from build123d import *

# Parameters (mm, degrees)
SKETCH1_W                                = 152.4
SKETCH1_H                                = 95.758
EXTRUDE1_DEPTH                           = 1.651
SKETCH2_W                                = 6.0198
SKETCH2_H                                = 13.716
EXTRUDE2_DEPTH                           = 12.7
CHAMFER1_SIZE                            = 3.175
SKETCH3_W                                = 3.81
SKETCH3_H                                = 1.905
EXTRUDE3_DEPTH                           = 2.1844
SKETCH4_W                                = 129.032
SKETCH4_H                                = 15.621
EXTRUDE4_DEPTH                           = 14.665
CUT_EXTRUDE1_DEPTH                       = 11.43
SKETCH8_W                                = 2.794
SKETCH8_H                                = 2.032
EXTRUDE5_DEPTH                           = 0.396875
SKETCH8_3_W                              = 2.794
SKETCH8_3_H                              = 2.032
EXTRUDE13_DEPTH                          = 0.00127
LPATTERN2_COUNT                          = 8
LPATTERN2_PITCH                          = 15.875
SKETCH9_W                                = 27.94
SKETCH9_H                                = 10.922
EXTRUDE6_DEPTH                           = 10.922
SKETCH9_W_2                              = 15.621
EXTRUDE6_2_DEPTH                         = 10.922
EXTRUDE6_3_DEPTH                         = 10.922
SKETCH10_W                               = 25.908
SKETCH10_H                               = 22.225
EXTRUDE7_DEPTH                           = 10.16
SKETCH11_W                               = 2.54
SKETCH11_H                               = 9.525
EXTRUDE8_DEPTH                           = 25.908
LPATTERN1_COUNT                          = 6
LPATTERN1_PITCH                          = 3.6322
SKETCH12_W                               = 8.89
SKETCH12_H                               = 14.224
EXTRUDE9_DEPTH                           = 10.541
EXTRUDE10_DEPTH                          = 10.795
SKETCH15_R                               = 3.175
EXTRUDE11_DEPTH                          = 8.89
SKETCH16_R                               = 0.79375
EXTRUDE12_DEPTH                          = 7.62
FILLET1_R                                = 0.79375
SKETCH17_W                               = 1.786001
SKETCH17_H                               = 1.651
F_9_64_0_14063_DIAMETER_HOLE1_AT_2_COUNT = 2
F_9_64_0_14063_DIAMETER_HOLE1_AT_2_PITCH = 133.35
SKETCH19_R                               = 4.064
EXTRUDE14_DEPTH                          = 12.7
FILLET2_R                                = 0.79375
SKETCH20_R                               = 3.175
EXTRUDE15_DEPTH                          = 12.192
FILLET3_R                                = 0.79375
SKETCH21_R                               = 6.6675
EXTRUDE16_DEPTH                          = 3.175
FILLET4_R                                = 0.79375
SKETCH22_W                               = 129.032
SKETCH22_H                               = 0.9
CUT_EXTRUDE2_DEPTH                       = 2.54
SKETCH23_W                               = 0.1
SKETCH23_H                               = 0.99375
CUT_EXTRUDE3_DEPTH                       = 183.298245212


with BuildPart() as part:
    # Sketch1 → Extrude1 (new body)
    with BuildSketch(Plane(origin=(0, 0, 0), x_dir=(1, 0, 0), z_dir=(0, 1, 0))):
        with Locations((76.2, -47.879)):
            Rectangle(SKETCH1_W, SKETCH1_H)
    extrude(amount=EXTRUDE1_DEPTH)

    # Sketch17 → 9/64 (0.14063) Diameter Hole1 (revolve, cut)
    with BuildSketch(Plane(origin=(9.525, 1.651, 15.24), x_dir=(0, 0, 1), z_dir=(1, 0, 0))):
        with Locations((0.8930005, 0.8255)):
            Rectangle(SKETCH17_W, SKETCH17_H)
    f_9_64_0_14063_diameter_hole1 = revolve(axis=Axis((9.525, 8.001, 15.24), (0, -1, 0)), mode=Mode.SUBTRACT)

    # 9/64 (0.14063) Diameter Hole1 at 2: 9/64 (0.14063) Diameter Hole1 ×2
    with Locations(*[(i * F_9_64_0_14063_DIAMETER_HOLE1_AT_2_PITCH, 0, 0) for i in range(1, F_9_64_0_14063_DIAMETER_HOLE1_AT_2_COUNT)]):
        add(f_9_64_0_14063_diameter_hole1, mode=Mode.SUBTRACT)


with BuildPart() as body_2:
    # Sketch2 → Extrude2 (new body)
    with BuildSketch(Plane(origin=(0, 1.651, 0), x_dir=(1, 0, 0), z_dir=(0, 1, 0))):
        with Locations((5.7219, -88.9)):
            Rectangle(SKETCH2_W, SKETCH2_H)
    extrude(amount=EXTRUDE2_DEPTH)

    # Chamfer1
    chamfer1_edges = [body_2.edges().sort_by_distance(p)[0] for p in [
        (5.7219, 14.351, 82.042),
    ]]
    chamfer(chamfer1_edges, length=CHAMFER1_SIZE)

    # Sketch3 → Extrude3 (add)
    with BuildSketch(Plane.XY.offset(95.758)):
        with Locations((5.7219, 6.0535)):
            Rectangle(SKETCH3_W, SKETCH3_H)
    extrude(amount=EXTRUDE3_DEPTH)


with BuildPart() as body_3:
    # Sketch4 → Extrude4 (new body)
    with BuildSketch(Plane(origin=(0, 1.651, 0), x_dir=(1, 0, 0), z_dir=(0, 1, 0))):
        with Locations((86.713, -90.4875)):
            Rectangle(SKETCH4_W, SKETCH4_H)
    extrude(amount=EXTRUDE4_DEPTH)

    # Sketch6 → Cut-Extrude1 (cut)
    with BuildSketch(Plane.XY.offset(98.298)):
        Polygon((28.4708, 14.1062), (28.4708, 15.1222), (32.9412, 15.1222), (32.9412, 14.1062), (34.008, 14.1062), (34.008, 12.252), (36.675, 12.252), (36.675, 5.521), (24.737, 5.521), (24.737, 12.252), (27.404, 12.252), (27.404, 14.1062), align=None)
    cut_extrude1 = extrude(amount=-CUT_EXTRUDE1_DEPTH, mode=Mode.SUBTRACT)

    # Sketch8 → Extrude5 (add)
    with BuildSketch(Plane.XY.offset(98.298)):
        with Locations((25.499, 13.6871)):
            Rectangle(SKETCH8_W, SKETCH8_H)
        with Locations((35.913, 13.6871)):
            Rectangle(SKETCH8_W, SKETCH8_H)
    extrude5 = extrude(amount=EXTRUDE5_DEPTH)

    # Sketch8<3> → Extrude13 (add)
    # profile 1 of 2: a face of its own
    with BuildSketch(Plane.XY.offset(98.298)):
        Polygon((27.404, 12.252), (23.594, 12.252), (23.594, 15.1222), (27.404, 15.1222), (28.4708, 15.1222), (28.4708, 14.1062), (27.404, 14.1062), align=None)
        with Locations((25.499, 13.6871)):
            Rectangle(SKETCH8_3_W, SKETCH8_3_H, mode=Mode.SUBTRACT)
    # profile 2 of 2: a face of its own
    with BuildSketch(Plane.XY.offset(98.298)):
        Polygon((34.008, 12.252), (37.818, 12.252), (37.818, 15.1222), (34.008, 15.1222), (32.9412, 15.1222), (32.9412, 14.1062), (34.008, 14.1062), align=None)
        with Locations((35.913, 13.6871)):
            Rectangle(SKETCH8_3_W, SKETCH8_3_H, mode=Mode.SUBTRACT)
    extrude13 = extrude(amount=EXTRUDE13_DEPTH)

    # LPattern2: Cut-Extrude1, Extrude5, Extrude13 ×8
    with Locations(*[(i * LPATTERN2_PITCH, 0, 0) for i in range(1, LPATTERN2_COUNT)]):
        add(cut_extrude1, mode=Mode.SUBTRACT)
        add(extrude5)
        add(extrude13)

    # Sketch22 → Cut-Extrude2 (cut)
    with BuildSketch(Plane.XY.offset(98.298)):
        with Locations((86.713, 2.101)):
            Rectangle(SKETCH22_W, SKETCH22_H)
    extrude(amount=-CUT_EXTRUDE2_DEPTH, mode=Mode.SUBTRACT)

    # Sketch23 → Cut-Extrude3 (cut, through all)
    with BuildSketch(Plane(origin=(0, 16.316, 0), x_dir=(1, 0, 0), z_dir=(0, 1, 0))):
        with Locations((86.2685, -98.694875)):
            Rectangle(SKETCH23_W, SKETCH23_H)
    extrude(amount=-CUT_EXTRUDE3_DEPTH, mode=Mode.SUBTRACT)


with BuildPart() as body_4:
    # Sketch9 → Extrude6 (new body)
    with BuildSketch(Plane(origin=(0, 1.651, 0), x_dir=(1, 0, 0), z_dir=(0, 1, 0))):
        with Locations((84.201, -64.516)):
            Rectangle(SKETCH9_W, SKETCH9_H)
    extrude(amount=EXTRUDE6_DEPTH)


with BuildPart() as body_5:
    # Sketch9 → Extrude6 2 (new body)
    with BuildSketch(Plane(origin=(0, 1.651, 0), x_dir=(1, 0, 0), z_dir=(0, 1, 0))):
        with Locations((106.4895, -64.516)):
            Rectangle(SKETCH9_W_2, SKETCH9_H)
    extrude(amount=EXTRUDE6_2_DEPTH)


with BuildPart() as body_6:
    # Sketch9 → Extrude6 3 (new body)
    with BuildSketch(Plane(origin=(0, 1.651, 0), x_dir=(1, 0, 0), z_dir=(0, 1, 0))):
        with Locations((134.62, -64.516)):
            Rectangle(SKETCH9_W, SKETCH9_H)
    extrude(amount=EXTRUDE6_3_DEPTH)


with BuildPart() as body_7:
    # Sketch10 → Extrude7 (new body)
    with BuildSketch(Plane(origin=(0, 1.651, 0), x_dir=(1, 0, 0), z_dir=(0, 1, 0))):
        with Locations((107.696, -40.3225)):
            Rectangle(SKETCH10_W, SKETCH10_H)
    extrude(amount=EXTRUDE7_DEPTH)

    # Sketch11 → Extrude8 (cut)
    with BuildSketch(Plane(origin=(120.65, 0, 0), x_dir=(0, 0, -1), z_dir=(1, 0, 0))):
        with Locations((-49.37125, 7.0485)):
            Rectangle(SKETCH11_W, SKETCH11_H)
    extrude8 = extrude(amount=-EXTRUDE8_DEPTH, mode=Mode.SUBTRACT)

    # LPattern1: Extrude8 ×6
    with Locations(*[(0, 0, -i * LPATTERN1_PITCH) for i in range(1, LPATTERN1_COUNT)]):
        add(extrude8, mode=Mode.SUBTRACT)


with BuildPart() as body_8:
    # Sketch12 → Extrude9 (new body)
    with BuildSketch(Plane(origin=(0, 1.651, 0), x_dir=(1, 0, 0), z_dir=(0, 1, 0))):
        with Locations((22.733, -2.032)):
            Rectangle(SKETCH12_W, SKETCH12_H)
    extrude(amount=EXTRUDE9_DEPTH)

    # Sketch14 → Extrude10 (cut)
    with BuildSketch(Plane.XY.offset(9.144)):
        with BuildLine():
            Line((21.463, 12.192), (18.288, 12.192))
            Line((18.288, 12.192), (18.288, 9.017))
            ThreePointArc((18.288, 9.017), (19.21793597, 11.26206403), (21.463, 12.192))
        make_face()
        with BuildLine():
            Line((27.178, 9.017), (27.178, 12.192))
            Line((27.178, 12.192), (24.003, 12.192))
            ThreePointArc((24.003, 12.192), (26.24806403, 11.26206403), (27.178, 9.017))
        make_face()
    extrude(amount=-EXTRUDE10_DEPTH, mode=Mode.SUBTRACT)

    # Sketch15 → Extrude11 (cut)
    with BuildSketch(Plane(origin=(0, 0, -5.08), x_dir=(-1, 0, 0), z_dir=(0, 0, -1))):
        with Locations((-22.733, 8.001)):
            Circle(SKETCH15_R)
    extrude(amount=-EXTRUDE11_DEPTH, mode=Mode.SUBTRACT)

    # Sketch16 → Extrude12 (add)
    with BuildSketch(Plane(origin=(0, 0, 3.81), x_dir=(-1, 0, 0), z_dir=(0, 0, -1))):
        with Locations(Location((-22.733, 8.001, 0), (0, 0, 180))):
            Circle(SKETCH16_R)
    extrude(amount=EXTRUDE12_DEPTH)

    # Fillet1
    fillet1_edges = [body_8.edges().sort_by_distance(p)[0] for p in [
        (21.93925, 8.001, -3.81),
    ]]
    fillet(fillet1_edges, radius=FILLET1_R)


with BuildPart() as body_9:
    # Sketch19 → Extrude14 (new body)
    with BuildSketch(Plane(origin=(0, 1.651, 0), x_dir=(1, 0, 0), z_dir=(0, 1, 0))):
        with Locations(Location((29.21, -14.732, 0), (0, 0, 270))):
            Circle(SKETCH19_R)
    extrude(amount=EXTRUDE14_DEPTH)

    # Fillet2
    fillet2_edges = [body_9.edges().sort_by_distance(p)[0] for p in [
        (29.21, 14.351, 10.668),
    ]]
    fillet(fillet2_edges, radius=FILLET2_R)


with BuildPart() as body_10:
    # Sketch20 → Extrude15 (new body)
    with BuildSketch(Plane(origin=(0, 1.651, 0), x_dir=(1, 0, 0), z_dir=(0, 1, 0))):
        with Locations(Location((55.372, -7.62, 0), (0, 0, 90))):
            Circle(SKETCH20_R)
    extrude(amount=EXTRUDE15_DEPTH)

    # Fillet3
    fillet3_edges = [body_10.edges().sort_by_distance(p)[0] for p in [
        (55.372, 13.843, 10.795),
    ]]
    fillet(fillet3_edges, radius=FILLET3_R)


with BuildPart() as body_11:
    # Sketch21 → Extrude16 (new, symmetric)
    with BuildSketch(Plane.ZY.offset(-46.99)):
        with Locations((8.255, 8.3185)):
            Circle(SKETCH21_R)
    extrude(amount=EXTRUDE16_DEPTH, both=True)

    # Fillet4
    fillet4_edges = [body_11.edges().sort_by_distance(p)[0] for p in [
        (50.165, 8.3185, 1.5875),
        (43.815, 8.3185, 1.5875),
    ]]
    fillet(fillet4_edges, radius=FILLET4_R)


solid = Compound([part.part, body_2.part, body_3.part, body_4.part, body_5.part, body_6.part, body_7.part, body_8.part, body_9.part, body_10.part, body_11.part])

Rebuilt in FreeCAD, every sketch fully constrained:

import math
import FreeCAD as App
import Part
import Sketcher
Q = App.Units.Quantity


def edges_at(feature, points):
    """Names of the edges that pass closest to the given points."""
    edges = feature.Shape.Edges
    near = lambda p: min(range(len(edges)), key=lambda i: edges[i].distToShape(Part.Vertex(*p))[0])
    return sorted({f"Edge{near(p) + 1}" for p in points})


def add_polygon(sketch, points):
    """Adds a closed chain of lines whose ends are joined by coincident constraints."""
    first, n = sketch.GeometryCount, len(points)
    for a, b in zip(points, points[1:] + points[:1]):
        sketch.addGeometry(Part.LineSegment(App.Vector(*a, 0), App.Vector(*b, 0)), False)
    for i in range(n):
        sketch.addConstraint(Sketcher.Constraint("Coincident", first + i, 2, first + (i + 1) % n, 1))

doc = App.newDocument("Part")
body = doc.addObject("PartDesign::Body", "Body")

sketch1 = body.newObject("Sketcher::SketchObject", "Sketch")
sketch1.AttachmentSupport = (doc.getObject("XZ_Plane"), [""])
sketch1.MapMode = "FlatFace"
add_polygon(sketch1, [(0, 0), (0, 96), (152, 96), (152, 0)])
sketch1.addConstraint([
    Sketcher.Constraint("Vertical", 0),
    Sketcher.Constraint("Horizontal", 1),
    Sketcher.Constraint("Vertical", 2),
    Sketcher.Constraint("Horizontal", 3),
    Sketcher.Constraint("Coincident", 3, 2, -1, 1),
    Sketcher.Constraint("DistanceX", 1, 1, 1, 2, Q("6 in")),
    Sketcher.Constraint("DistanceY", 0, 1, 0, 2, Q("3.77 in")),
])
pad1 = body.newObject("PartDesign::Pad", "Pad")
pad1.Profile = sketch1
pad1.Length = Q("0.065 in")
pad1.Reversed = True

sketch2 = body.newObject("Sketcher::SketchObject", "Sketch001")
sketch2.AttachmentSupport = (doc.getObject("YZ_Plane"), [""])
sketch2.MapMode = "FlatFace"
sketch2.AttachmentOffset = App.Placement(App.Vector(0, 0, 0.375 * 25.4), App.Rotation())
add_polygon(sketch2, [(0, 15.2), (1.7, 15.2), (1.7, 17), (0, 17)])
sketch2.addGeometry(Part.LineSegment(App.Vector(1.7, 15.2, 0), App.Vector(0, 15.2, 0)), True)
sketch2.addConstraint([
    Sketcher.Constraint("Horizontal", 0),
    Sketcher.Constraint("Vertical", 1),
    Sketcher.Constraint("Horizontal", 2),
    Sketcher.Constraint("Vertical", 3),
    Sketcher.Constraint("Horizontal", 4),
    Sketcher.Constraint("Coincident", 4, 1, 0, 2),
    Sketcher.Constraint("PointOnObject", 2, 2, -2),
    Sketcher.Constraint("PointOnObject", 4, 2, -2),
    Sketcher.Constraint("DistanceY", -1, 1, 0, 2, Q("0.6 in")),
    Sketcher.Constraint("DistanceX", 0, 1, 0, 2, Q("0.065 in")),
    Sketcher.Constraint("DistanceY", 1, 1, 1, 2, 1.786001),
])
groove = body.newObject("PartDesign::Groove", "Groove")
groove.Profile = sketch2
groove.ReferenceAxis = (sketch2, ["Axis0"])
groove.Angle = 360
doc.recompute()

linearpattern = body.newObject("PartDesign::LinearPattern", "LinearPattern")
linearpattern.Originals = [groove]
linearpattern.Direction = (doc.getObject("X_Axis"), [""])
linearpattern.Mode = "offset"
linearpattern.Offset = Q("5.25 in")
linearpattern.Occurrences = 2
body.Tip = linearpattern
body2 = doc.addObject("PartDesign::Body", "Body001")

sketch3 = body2.newObject("Sketcher::SketchObject", "Sketch002")
sketch3.AttachmentSupport = (doc.getObject("XZ_Plane001"), [""])
sketch3.MapMode = "FlatFace"
sketch3.AttachmentOffset = App.Placement(App.Vector(0, 0, -0.065 * 25.4), App.Rotation())
add_polygon(sketch3, [(3, 82), (3, 96), (9, 96), (9, 82)])
sketch3.addConstraint([
    Sketcher.Constraint("Vertical", 0),
    Sketcher.Constraint("Horizontal", 1),
    Sketcher.Constraint("Vertical", 2),
    Sketcher.Constraint("Horizontal", 3),
    Sketcher.Constraint("DistanceY", 0, 1, 0, 2, Q("0.54 in")),
    Sketcher.Constraint("DistanceX", 1, 1, 1, 2, Q("0.237 in")),
    Sketcher.Constraint("DistanceY", -1, 1, 0, 2, Q("3.77 in")),
    Sketcher.Constraint("DistanceX", -1, 1, 0, 2, 2.712),
])
pad2 = body2.newObject("PartDesign::Pad", "Pad001")
pad2.Profile = sketch3
pad2.Length = Q("0.5 in")
pad2.Reversed = True
doc.recompute()

chamfer = body2.newObject("PartDesign::Chamfer", "Chamfer")
chamfer.Base = (pad2, edges_at(pad2, [(5.722, 14.351, 82.042)]))
chamfer.Size = Q("0.125 in")

sketch4 = body2.newObject("Sketcher::SketchObject", "Sketch003")
sketch4.AttachmentSupport = (doc.getObject("XY_Plane001"), [""])
sketch4.MapMode = "FlatFace"
sketch4.AttachmentOffset = App.Placement(App.Vector(0, 0, 3.77 * 25.4), App.Rotation())
add_polygon(sketch4, [(3.8, 7), (3.8, 5.1), (7.6, 5.1), (7.6, 7)])
sketch4.addConstraint([
    Sketcher.Constraint("Vertical", 0),
    Sketcher.Constraint("Horizontal", 1),
    Sketcher.Constraint("Vertical", 2),
    Sketcher.Constraint("Horizontal", 3),
    Sketcher.Constraint("DistanceX", 1, 1, 1, 2, Q("0.15 in")),
    Sketcher.Constraint("DistanceY", 0, 2, 0, 1, Q("0.075 in")),
    Sketcher.Constraint("DistanceX", -1, 1, 0, 2, 3.8169),
    Sketcher.Constraint("DistanceY", -1, 1, 0, 2, 5.101),
])
pad3 = body2.newObject("PartDesign::Pad", "Pad002")
pad3.Profile = sketch4
pad3.Length = Q("0.086 in")
body3 = doc.addObject("PartDesign::Body", "Body002")

sketch5 = body3.newObject("Sketcher::SketchObject", "Sketch004")
sketch5.AttachmentSupport = (doc.getObject("XZ_Plane002"), [""])
sketch5.MapMode = "FlatFace"
sketch5.AttachmentOffset = App.Placement(App.Vector(0, 0, -0.065 * 25.4), App.Rotation())
add_polygon(sketch5, [(22, 83), (22, 98), (151, 98), (151, 83)])
sketch5.addConstraint([
    Sketcher.Constraint("Vertical", 0),
    Sketcher.Constraint("Horizontal", 1),
    Sketcher.Constraint("Vertical", 2),
    Sketcher.Constraint("Horizontal", 3),
    Sketcher.Constraint("DistanceX", 1, 1, 1, 2, Q("5.08 in")),
    Sketcher.Constraint("DistanceY", 0, 1, 0, 2, Q("0.615 in")),
    Sketcher.Constraint("DistanceY", -1, 1, 0, 2, Q("3.87 in")),
    Sketcher.Constraint("DistanceX", -1, 1, 0, 2, 22.197),
])
pad4 = body3.newObject("PartDesign::Pad", "Pad003")
pad4.Profile = sketch5
pad4.Length = 14.665
pad4.Reversed = True

sketch6 = body3.newObject("Sketcher::SketchObject", "Sketch005")
sketch6.AttachmentSupport = (doc.getObject("XY_Plane002"), [""])
sketch6.MapMode = "FlatFace"
sketch6.AttachmentOffset = App.Placement(App.Vector(0, 0, 3.87 * 25.4), App.Rotation())
add_polygon(sketch6, [(28.5, 15.1), (28.5, 14.1), (27.4, 14.1), (27.4, 12.3), (24.7, 12.3), (24.7, 5.5), (36.7, 5.5), (36.7, 12.3), (34, 12.3), (34, 14.1), (32.9, 14.1), (32.9, 15.1)])
sketch6.addConstraint([
    Sketcher.Constraint("Vertical", 0),
    Sketcher.Constraint("Horizontal", 1),
    Sketcher.Constraint("Vertical", 2),
    Sketcher.Constraint("Horizontal", 3),
    Sketcher.Constraint("Vertical", 4),
    Sketcher.Constraint("Horizontal", 5),
    Sketcher.Constraint("Vertical", 6),
    Sketcher.Constraint("Horizontal", 7),
    Sketcher.Constraint("Vertical", 8),
    Sketcher.Constraint("Horizontal", 9),
    Sketcher.Constraint("Vertical", 10),
    Sketcher.Constraint("Horizontal", 11),
    Sketcher.Constraint("Horizontal", 3, 2, 6, 2),
    Sketcher.Constraint("Horizontal", 1, 2, 8, 2),
    Sketcher.Constraint("Equal", 3, 7),
    Sketcher.Constraint("Equal", 1, 9),
    Sketcher.Constraint("DistanceX", 5, 1, 5, 2, Q("0.47 in")),
    Sketcher.Constraint("DistanceY", 0, 2, 0, 1, Q("0.04 in")),
    Sketcher.Constraint("DistanceX", 1, 2, 1, 1, Q("0.042 in")),
    Sketcher.Constraint("DistanceX", 3, 2, 3, 1, Q("0.105 in")),
    Sketcher.Constraint("DistanceY", 2, 2, 2, 1, Q("0.073 in")),
    Sketcher.Constraint("DistanceY", 4, 2, 4, 1, Q("0.265 in")),
    Sketcher.Constraint("DistanceX", -1, 1, 0, 2, 28.4708),
    Sketcher.Constraint("DistanceY", -1, 1, 0, 2, 14.1062),
])
pocket1 = body3.newObject("PartDesign::Pocket", "Pocket")
pocket1.Profile = sketch6
pocket1.Length = Q("0.45 in")

sketch7 = body3.newObject("Sketcher::SketchObject", "Sketch006")
sketch7.AttachmentSupport = (doc.getObject("XY_Plane002"), [""])
sketch7.MapMode = "FlatFace"
sketch7.AttachmentOffset = App.Placement(App.Vector(0, 0, 3.87 * 25.4), App.Rotation())
add_polygon(sketch7, [(24.1, 14.7), (24.1, 12.7), (26.9, 12.7), (26.9, 14.7)])
add_polygon(sketch7, [(34.5, 14.7), (34.5, 12.7), (37.3, 12.7), (37.3, 14.7)])
sketch7.addConstraint([
    Sketcher.Constraint("Vertical", 0),
    Sketcher.Constraint("Horizontal", 1),
    Sketcher.Constraint("Vertical", 2),
    Sketcher.Constraint("Horizontal", 3),
    Sketcher.Constraint("Vertical", 4),
    Sketcher.Constraint("Horizontal", 5),
    Sketcher.Constraint("Vertical", 6),
    Sketcher.Constraint("Horizontal", 7),
    Sketcher.Constraint("Horizontal", 1, 2, 4, 2),
    Sketcher.Constraint("Horizontal", 3, 2, 6, 2),
    Sketcher.Constraint("Equal", 3, 5),
    Sketcher.Constraint("DistanceX", 1, 1, 1, 2, Q("0.11 in")),
    Sketcher.Constraint("DistanceY", 0, 2, 0, 1, Q("0.08 in")),
    Sketcher.Constraint("DistanceX", 1, 2, 4, 2, Q("0.3 in")),
    Sketcher.Constraint("DistanceX", -1, 1, 0, 2, 24.102),
    Sketcher.Constraint("DistanceY", -1, 1, 0, 2, 12.6711),
])
pad5 = body3.newObject("PartDesign::Pad", "Pad004")
pad5.Profile = sketch7
pad5.Length = Q("0.015625 in")

sketch8 = body3.newObject("Sketcher::SketchObject", "Sketch007")
sketch8.AttachmentSupport = (doc.getObject("XY_Plane002"), [""])
sketch8.MapMode = "FlatFace"
sketch8.AttachmentOffset = App.Placement(App.Vector(0, 0, 3.87 * 25.4), App.Rotation())
add_polygon(sketch8, [(23.6, 12.3), (27.4, 12.3), (27.4, 14.1), (28.5, 14.1), (28.5, 15.1), (23.6, 15.1)])
add_polygon(sketch8, [(24.1, 12.7), (24.1, 14.7), (26.9, 14.7), (26.9, 12.7)])
add_polygon(sketch8, [(34, 12.3), (37.8, 12.3), (37.8, 15.1), (32.9, 15.1), (32.9, 14.1), (34, 14.1)])
add_polygon(sketch8, [(37.3, 12.7), (34.5, 12.7), (34.5, 14.7), (37.3, 14.7)])
sketch8.addConstraint([
    Sketcher.Constraint("Horizontal", 0),
    Sketcher.Constraint("Vertical", 1),
    Sketcher.Constraint("Horizontal", 2),
    Sketcher.Constraint("Vertical", 3),
    Sketcher.Constraint("Horizontal", 4),
    Sketcher.Constraint("Vertical", 5),
    Sketcher.Constraint("Vertical", 6),
    Sketcher.Constraint("Horizontal", 7),
    Sketcher.Constraint("Vertical", 8),
    Sketcher.Constraint("Horizontal", 9),
    Sketcher.Constraint("Horizontal", 10),
    Sketcher.Constraint("Vertical", 11),
    Sketcher.Constraint("Horizontal", 12),
    Sketcher.Constraint("Vertical", 13),
    Sketcher.Constraint("Horizontal", 14),
    Sketcher.Constraint("Vertical", 15),
    Sketcher.Constraint("Horizontal", 16),
    Sketcher.Constraint("Vertical", 17),
    Sketcher.Constraint("Horizontal", 18),
    Sketcher.Constraint("Vertical", 19),
    Sketcher.Constraint("Horizontal", 5, 2, 10, 2),
    Sketcher.Constraint("Horizontal", 4, 2, 11, 2),
    Sketcher.Constraint("Horizontal", 2, 2, 13, 2),
    Sketcher.Constraint("Horizontal", 9, 2, 16, 2),
    Sketcher.Constraint("Horizontal", 7, 2, 17, 2),
    Sketcher.Constraint("Equal", 0, 10),
    Sketcher.Constraint("Equal", 4, 12),
    Sketcher.Constraint("Equal", 9, 16),
    Sketcher.Constraint("DistanceX", 0, 1, 0, 2, Q("0.15 in")),
    Sketcher.Constraint("DistanceX", 7, 1, 7, 2, Q("0.11 in")),
    Sketcher.Constraint("DistanceY", 3, 1, 3, 2, Q("0.04 in")),
    Sketcher.Constraint("DistanceY", 6, 1, 6, 2, Q("0.08 in")),
    Sketcher.Constraint("DistanceX", 2, 1, 2, 2, Q("0.042 in")),
    Sketcher.Constraint("DistanceY", 1, 1, 1, 2, Q("0.073 in")),
    Sketcher.Constraint("DistanceX", 4, 2, 6, 2, Q("0.02 in")),
    Sketcher.Constraint("DistanceX", 0, 2, 10, 2, Q("0.41 in")),
    Sketcher.Constraint("DistanceX", 15, 2, 16, 2, Q("0.02 in")),
    Sketcher.Constraint("DistanceY", 6, 2, 4, 2, Q("0.0165 in")),
    Sketcher.Constraint("DistanceX", -1, 1, 0, 2, 27.404),
    Sketcher.Constraint("DistanceY", -1, 1, 0, 2, 12.252),
])
pad6 = body3.newObject("PartDesign::Pad", "Pad005")
pad6.Profile = sketch8
pad6.Length = 0.00127
doc.recompute()

linearpattern2 = body3.newObject("PartDesign::LinearPattern", "LinearPattern001")
linearpattern2.Originals = [pocket1, pad5, pad6]
linearpattern2.Direction = (doc.getObject("X_Axis002"), [""])
linearpattern2.Mode = "offset"
linearpattern2.Offset = Q("0.625 in")
linearpattern2.Occurrences = 8
body3.Tip = linearpattern2

sketch9 = body3.newObject("Sketcher::SketchObject", "Sketch008")
sketch9.AttachmentSupport = (doc.getObject("XY_Plane002"), [""])
sketch9.MapMode = "FlatFace"
sketch9.AttachmentOffset = App.Placement(App.Vector(0, 0, 3.87 * 25.4), App.Rotation())
add_polygon(sketch9, [(22.2, 2.6), (22.2, 1.7), (151.2, 1.7), (151.2, 2.6)])
sketch9.addConstraint([
    Sketcher.Constraint("Vertical", 0),
    Sketcher.Constraint("Horizontal", 1),
    Sketcher.Constraint("Vertical", 2),
    Sketcher.Constraint("Horizontal", 3),
    Sketcher.Constraint("DistanceX", 1, 1, 1, 2, Q("5.08 in")),
    Sketcher.Constraint("DistanceY", -1, 1, 0, 2, Q("0.065 in")),
    Sketcher.Constraint("DistanceY", 0, 2, 0, 1, 0.9),
    Sketcher.Constraint("DistanceX", -1, 1, 0, 2, 22.197),
])
pocket2 = body3.newObject("PartDesign::Pocket", "Pocket001")
pocket2.Profile = sketch9
pocket2.Length = Q("0.1 in")

sketch10 = body3.newObject("Sketcher::SketchObject", "Sketch009")
sketch10.AttachmentSupport = (doc.getObject("XZ_Plane002"), [""])
sketch10.MapMode = "FlatFace"
sketch10.AttachmentOffset = App.Placement(App.Vector(0, 0, -16.316), App.Rotation())
add_polygon(sketch10, [(86.22, 98.2), (86.22, 99.19), (86.32, 99.19), (86.32, 98.2)])
sketch10.addConstraint([
    Sketcher.Constraint("Vertical", 0),
    Sketcher.Constraint("Horizontal", 1),
    Sketcher.Constraint("Vertical", 2),
    Sketcher.Constraint("Horizontal", 3),
    Sketcher.Constraint("DistanceX", 1, 1, 1, 2, 0.1),
    Sketcher.Constraint("DistanceY", 0, 1, 0, 2, 0.99375),
    Sketcher.Constraint("DistanceX", -1, 1, 0, 2, 86.2185),
    Sketcher.Constraint("DistanceY", -1, 1, 2, 2, 98.198),
])
pocket3 = body3.newObject("PartDesign::Pocket", "Pocket002")
pocket3.Profile = sketch10
pocket3.Type = "ThroughAll"
pocket3.Reversed = True
body4 = doc.addObject("PartDesign::Body", "Body003")

sketch11 = body4.newObject("Sketcher::SketchObject", "Sketch010")
sketch11.AttachmentSupport = (doc.getObject("XZ_Plane003"), [""])
sketch11.MapMode = "FlatFace"
sketch11.AttachmentOffset = App.Placement(App.Vector(0, 0, -0.065 * 25.4), App.Rotation())
add_polygon(sketch11, [(70, 59), (70, 70), (98, 70), (98, 59)])
sketch11.addConstraint([
    Sketcher.Constraint("Vertical", 0),
    Sketcher.Constraint("Horizontal", 1),
    Sketcher.Constraint("Vertical", 2),
    Sketcher.Constraint("Horizontal", 3),
    Sketcher.Constraint("DistanceX", 1, 1, 1, 2, Q("1.1 in")),
    Sketcher.Constraint("DistanceY", 0, 1, 0, 2, Q("0.43 in")),
    Sketcher.Constraint("DistanceX", -1, 1, 0, 2, Q("2.765 in")),
    Sketcher.Constraint("DistanceY", -1, 1, 0, 2, Q("2.755 in")),
])
pad7 = body4.newObject("PartDesign::Pad", "Pad006")
pad7.Profile = sketch11
pad7.Length = Q("0.43 in")
pad7.Reversed = True
body5 = doc.addObject("PartDesign::Body", "Body004")

sketch12 = body5.newObject("Sketcher::SketchObject", "Sketch011")
sketch12.AttachmentSupport = (doc.getObject("XZ_Plane004"), [""])
sketch12.MapMode = "FlatFace"
sketch12.AttachmentOffset = App.Placement(App.Vector(0, 0, -0.065 * 25.4), App.Rotation())
add_polygon(sketch12, [(99, 59), (99, 70), (114, 70), (114, 59)])
sketch12.addConstraint([
    Sketcher.Constraint("Vertical", 0),
    Sketcher.Constraint("Horizontal", 1),
    Sketcher.Constraint("Vertical", 2),
    Sketcher.Constraint("Horizontal", 3),
    Sketcher.Constraint("DistanceY", 0, 1, 0, 2, Q("0.43 in")),
    Sketcher.Constraint("DistanceX", -1, 1, 1, 2, Q("4.5 in")),
    Sketcher.Constraint("DistanceX", 1, 1, 1, 2, Q("0.615 in")),
    Sketcher.Constraint("DistanceY", -1, 1, 0, 2, Q("2.755 in")),
])
pad8 = body5.newObject("PartDesign::Pad", "Pad007")
pad8.Profile = sketch12
pad8.Length = Q("0.43 in")
pad8.Reversed = True
body6 = doc.addObject("PartDesign::Body", "Body005")

sketch13 = body6.newObject("Sketcher::SketchObject", "Sketch012")
sketch13.AttachmentSupport = (doc.getObject("XZ_Plane005"), [""])
sketch13.MapMode = "FlatFace"
sketch13.AttachmentOffset = App.Placement(App.Vector(0, 0, -0.065 * 25.4), App.Rotation())
add_polygon(sketch13, [(121, 59), (121, 70), (149, 70), (149, 59)])
sketch13.addConstraint([
    Sketcher.Constraint("Vertical", 0),
    Sketcher.Constraint("Horizontal", 1),
    Sketcher.Constraint("Vertical", 2),
    Sketcher.Constraint("Horizontal", 3),
    Sketcher.Constraint("DistanceX", 1, 1, 1, 2, Q("1.1 in")),
    Sketcher.Constraint("DistanceY", 0, 1, 0, 2, Q("0.43 in")),
    Sketcher.Constraint("DistanceX", -1, 1, 0, 2, Q("4.75 in")),
    Sketcher.Constraint("DistanceY", -1, 1, 0, 2, Q("2.755 in")),
])
pad9 = body6.newObject("PartDesign::Pad", "Pad008")
pad9.Profile = sketch13
pad9.Length = Q("0.43 in")
pad9.Reversed = True
body7 = doc.addObject("PartDesign::Body", "Body006")

sketch14 = body7.newObject("Sketcher::SketchObject", "Sketch013")
sketch14.AttachmentSupport = (doc.getObject("XZ_Plane006"), [""])
sketch14.MapMode = "FlatFace"
sketch14.AttachmentOffset = App.Placement(App.Vector(0, 0, -0.065 * 25.4), App.Rotation())
add_polygon(sketch14, [(95, 29), (95, 51), (121, 51), (121, 29)])
sketch14.addConstraint([
    Sketcher.Constraint("Vertical", 0),
    Sketcher.Constraint("Horizontal", 1),
    Sketcher.Constraint("Vertical", 2),
    Sketcher.Constraint("Horizontal", 3),
    Sketcher.Constraint("DistanceX", 1, 1, 1, 2, Q("1.02 in")),
    Sketcher.Constraint("DistanceY", 0, 1, 0, 2, Q("0.875 in")),
    Sketcher.Constraint("DistanceX", -1, 1, 0, 2, Q("3.73 in")),
    Sketcher.Constraint("DistanceY", -1, 1, 2, 2, Q("1.15 in")),
])
pad10 = body7.newObject("PartDesign::Pad", "Pad009")
pad10.Profile = sketch14
pad10.Length = Q("0.4 in")
pad10.Reversed = True

sketch15 = body7.newObject("Sketcher::SketchObject", "Sketch014")
sketch15.AttachmentSupport = (doc.getObject("YZ_Plane006"), [""])
sketch15.MapMode = "FlatFace"
sketch15.AttachmentOffset = App.Placement(App.Vector(0, 0, 4.75 * 25.4), App.Rotation())
add_polygon(sketch15, [(11.8, 50.6), (2.3, 50.6), (2.3, 48.1), (11.8, 48.1)])
sketch15.addConstraint([
    Sketcher.Constraint("Horizontal", 0),
    Sketcher.Constraint("Vertical", 1),
    Sketcher.Constraint("Horizontal", 2),
    Sketcher.Constraint("Vertical", 3),
    Sketcher.Constraint("DistanceY", 1, 2, 1, 1, Q("0.1 in")),
    Sketcher.Constraint("DistanceX", 0, 2, 0, 1, Q("0.375 in")),
    Sketcher.Constraint("DistanceX", -1, 1, 0, 2, Q("0.09 in")),
    Sketcher.Constraint("DistanceY", -1, 1, 0, 2, 50.64125),
])
pocket4 = body7.newObject("PartDesign::Pocket", "Pocket003")
pocket4.Profile = sketch15
pocket4.Length = Q("1.02 in")
doc.recompute()

linearpattern3 = body7.newObject("PartDesign::LinearPattern", "LinearPattern002")
linearpattern3.Originals = [pocket4]
linearpattern3.Direction = (doc.getObject("Z_Axis006"), [""])
linearpattern3.Mode = "offset"
linearpattern3.Offset = Q("0.143 in")
linearpattern3.Occurrences = 6
linearpattern3.Reversed = True
body7.Tip = linearpattern3
body8 = doc.addObject("PartDesign::Body", "Body007")

sketch16 = body8.newObject("Sketcher::SketchObject", "Sketch015")
sketch16.AttachmentSupport = (doc.getObject("XZ_Plane007"), [""])
sketch16.MapMode = "FlatFace"
sketch16.AttachmentOffset = App.Placement(App.Vector(0, 0, -0.065 * 25.4), App.Rotation())
add_polygon(sketch16, [(18, -5), (18, 9), (27, 9), (27, -5)])
sketch16.addConstraint([
    Sketcher.Constraint("Vertical", 0),
    Sketcher.Constraint("Horizontal", 1),
    Sketcher.Constraint("Vertical", 2),
    Sketcher.Constraint("Horizontal", 3),
    Sketcher.Constraint("DistanceX", 1, 1, 1, 2, Q("0.35 in")),
    Sketcher.Constraint("DistanceY", 0, 1, 0, 2, Q("0.56 in")),
    Sketcher.Constraint("DistanceY", 2, 2, -1, 1, Q("0.2 in")),
    Sketcher.Constraint("DistanceX", -1, 1, 0, 2, Q("0.72 in")),
])
pad11 = body8.newObject("PartDesign::Pad", "Pad010")
pad11.Profile = sketch16
pad11.Length = Q("0.415 in")
pad11.Reversed = True

sketch17 = body8.newObject("Sketcher::SketchObject", "Sketch016")
sketch17.AttachmentSupport = (doc.getObject("XY_Plane007"), [""])
sketch17.MapMode = "FlatFace"
sketch17.AttachmentOffset = App.Placement(App.Vector(0, 0, 0.36 * 25.4), App.Rotation())
sketch17.addGeometry([
    Part.LineSegment(App.Vector(21.5, 12.2, 0), App.Vector(18.3, 12.2, 0)),
    Part.LineSegment(App.Vector(18.3, 12.2, 0), App.Vector(18.3, 9, 0)),
    Part.ArcOfCircle(Part.Circle(App.Vector(21.5, 9, 0), App.Vector(0, 0, 1), 3.2), math.radians(90), math.radians(180)),
    Part.LineSegment(App.Vector(27.2, 9, 0), App.Vector(27.2, 12.2, 0)),
    Part.LineSegment(App.Vector(27.2, 12.2, 0), App.Vector(24, 12.2, 0)),
    Part.ArcOfCircle(Part.Circle(App.Vector(24, 9, 0), App.Vector(0, 0, 1), 3.2), math.radians(0), math.radians(90)),
], False)
sketch17.addConstraint([
    Sketcher.Constraint("Coincident", 0, 2, 1, 1),
    Sketcher.Constraint("Tangent", 1, 2, 2, 2),
    Sketcher.Constraint("Tangent", 2, 1, 0, 1),
    Sketcher.Constraint("Coincident", 3, 2, 4, 1),
    Sketcher.Constraint("Tangent", 4, 2, 5, 2),
    Sketcher.Constraint("Tangent", 5, 1, 3, 1),
    Sketcher.Constraint("Horizontal", 0),
    Sketcher.Constraint("Vertical", 1),
    Sketcher.Constraint("Vertical", 3),
    Sketcher.Constraint("Horizontal", 4),
    Sketcher.Constraint("Equal", 2, 5),
    Sketcher.Constraint("Horizontal", 2, 3, 5, 3),
    Sketcher.Constraint("Radius", 2, Q("0.125 in")),
    Sketcher.Constraint("DistanceX", 2, 3, 5, 3, Q("0.1 in")),
    Sketcher.Constraint("DistanceX", -1, 1, 0, 2, Q("0.72 in")),
    Sketcher.Constraint("DistanceY", -1, 1, 0, 2, Q("0.48 in")),
])
pocket5 = body8.newObject("PartDesign::Pocket", "Pocket004")
pocket5.Profile = sketch17
pocket5.Length = Q("0.425 in")

sketch18 = body8.newObject("Sketcher::SketchObject", "Sketch017")
sketch18.AttachmentSupport = (doc.getObject("XY_Plane007"), [""])
sketch18.MapMode = "FlatFace"
sketch18.AttachmentOffset = App.Placement(App.Vector(0, 0, -0.2 * 25.4), App.Rotation())
sketch18.addGeometry(Part.Circle(App.Vector(22.7, 8, 0), App.Vector(0, 0, 1), 3.2), False)
sketch18.addConstraint([
    Sketcher.Constraint("Diameter", 0, Q("0.25 in")),
    Sketcher.Constraint("DistanceX", -1, 1, 0, 3, Q("0.895 in")),
    Sketcher.Constraint("DistanceY", -1, 1, 0, 3, Q("0.315 in")),
])
pocket6 = body8.newObject("PartDesign::Pocket", "Pocket005")
pocket6.Profile = sketch18
pocket6.Length = Q("0.35 in")
pocket6.Reversed = True

sketch19 = body8.newObject("Sketcher::SketchObject", "Sketch018")
sketch19.AttachmentSupport = (doc.getObject("XY_Plane007"), [""])
sketch19.MapMode = "FlatFace"
sketch19.AttachmentOffset = App.Placement(App.Vector(0, 0, 0.15 * 25.4), App.Rotation())
sketch19.addGeometry(Part.Circle(App.Vector(22.7, 8, 0), App.Vector(0, 0, 1), 0.8), False)
sketch19.addConstraint([
    Sketcher.Constraint("Diameter", 0, Q("0.0625 in")),
    Sketcher.Constraint("DistanceX", -1, 1, 0, 3, Q("0.895 in")),
    Sketcher.Constraint("DistanceY", -1, 1, 0, 3, Q("0.315 in")),
])
pad12 = body8.newObject("PartDesign::Pad", "Pad011")
pad12.Profile = sketch19
pad12.Length = Q("0.3 in")
pad12.Reversed = True
doc.recompute()

fillet = body8.newObject("PartDesign::Fillet", "Fillet")
fillet.Base = (pad12, edges_at(pad12, [(21.939, 8.001, -3.81)]))
fillet.Radius = Q("0.03125 in")
body9 = doc.addObject("PartDesign::Body", "Body008")

sketch20 = body9.newObject("Sketcher::SketchObject", "Sketch019")
sketch20.AttachmentSupport = (doc.getObject("XZ_Plane008"), [""])
sketch20.MapMode = "FlatFace"
sketch20.AttachmentOffset = App.Placement(App.Vector(0, 0, -0.065 * 25.4), App.Rotation())
sketch20.addGeometry(Part.Circle(App.Vector(29.2, 14.7, 0), App.Vector(0, 0, 1), 4.1), False)
sketch20.addConstraint([
    Sketcher.Constraint("Diameter", 0, Q("0.32 in")),
    Sketcher.Constraint("DistanceX", -1, 1, 0, 3, Q("1.15 in")),
    Sketcher.Constraint("DistanceY", -1, 1, 0, 3, Q("0.58 in")),
])
pad13 = body9.newObject("PartDesign::Pad", "Pad012")
pad13.Profile = sketch20
pad13.Length = Q("0.5 in")
pad13.Reversed = True
doc.recompute()

fillet2 = body9.newObject("PartDesign::Fillet", "Fillet001")
fillet2.Base = (pad13, edges_at(pad13, [(29.21, 14.351, 10.668)]))
fillet2.Radius = Q("0.03125 in")
body10 = doc.addObject("PartDesign::Body", "Body009")

sketch21 = body10.newObject("Sketcher::SketchObject", "Sketch020")
sketch21.AttachmentSupport = (doc.getObject("XZ_Plane009"), [""])
sketch21.MapMode = "FlatFace"
sketch21.AttachmentOffset = App.Placement(App.Vector(0, 0, -0.065 * 25.4), App.Rotation())
sketch21.addGeometry(Part.Circle(App.Vector(55.4, 7.6, 0), App.Vector(0, 0, 1), 3.2), False)
sketch21.addConstraint([
    Sketcher.Constraint("Diameter", 0, Q("0.25 in")),
    Sketcher.Constraint("DistanceY", -1, 1, 0, 3, Q("0.3 in")),
    Sketcher.Constraint("DistanceX", -1, 1, 0, 3, Q("2.18 in")),
])
pad14 = body10.newObject("PartDesign::Pad", "Pad013")
pad14.Profile = sketch21
pad14.Length = Q("0.48 in")
pad14.Reversed = True
doc.recompute()

fillet3 = body10.newObject("PartDesign::Fillet", "Fillet002")
fillet3.Base = (pad14, edges_at(pad14, [(55.372, 13.843, 10.795)]))
fillet3.Radius = Q("0.03125 in")
body11 = doc.addObject("PartDesign::Body", "Body010")

sketch22 = body11.newObject("Sketcher::SketchObject", "Sketch021")
sketch22.AttachmentSupport = (doc.getObject("YZ_Plane010"), [""])
sketch22.MapMode = "FlatFace"
sketch22.AttachmentOffset = App.Placement(App.Vector(0, 0, 1.85 * 25.4), App.Rotation())
sketch22.addGeometry(Part.Circle(App.Vector(8, 8, 0), App.Vector(0, 0, 1), 7), False)
sketch22.addConstraint([
    Sketcher.Constraint("Diameter", 0, Q("0.525 in")),
    Sketcher.Constraint("DistanceY", -1, 1, 0, 3, Q("0.325 in")),
    Sketcher.Constraint("DistanceX", -1, 1, 0, 3, Q("0.3275 in")),
])
pad15 = body11.newObject("PartDesign::Pad", "Pad014")
pad15.Profile = sketch22
pad15.Length = Q("0.25 in")
pad15.Midplane = True
doc.recompute()

fillet4 = body11.newObject("PartDesign::Fillet", "Fillet003")
fillet4.Base = (pad15, edges_at(pad15, [(50.165, 8.319, 1.587), (43.815, 8.319, 1.587)]))
fillet4.Radius = Q("0.03125 in")

doc.recompute()
